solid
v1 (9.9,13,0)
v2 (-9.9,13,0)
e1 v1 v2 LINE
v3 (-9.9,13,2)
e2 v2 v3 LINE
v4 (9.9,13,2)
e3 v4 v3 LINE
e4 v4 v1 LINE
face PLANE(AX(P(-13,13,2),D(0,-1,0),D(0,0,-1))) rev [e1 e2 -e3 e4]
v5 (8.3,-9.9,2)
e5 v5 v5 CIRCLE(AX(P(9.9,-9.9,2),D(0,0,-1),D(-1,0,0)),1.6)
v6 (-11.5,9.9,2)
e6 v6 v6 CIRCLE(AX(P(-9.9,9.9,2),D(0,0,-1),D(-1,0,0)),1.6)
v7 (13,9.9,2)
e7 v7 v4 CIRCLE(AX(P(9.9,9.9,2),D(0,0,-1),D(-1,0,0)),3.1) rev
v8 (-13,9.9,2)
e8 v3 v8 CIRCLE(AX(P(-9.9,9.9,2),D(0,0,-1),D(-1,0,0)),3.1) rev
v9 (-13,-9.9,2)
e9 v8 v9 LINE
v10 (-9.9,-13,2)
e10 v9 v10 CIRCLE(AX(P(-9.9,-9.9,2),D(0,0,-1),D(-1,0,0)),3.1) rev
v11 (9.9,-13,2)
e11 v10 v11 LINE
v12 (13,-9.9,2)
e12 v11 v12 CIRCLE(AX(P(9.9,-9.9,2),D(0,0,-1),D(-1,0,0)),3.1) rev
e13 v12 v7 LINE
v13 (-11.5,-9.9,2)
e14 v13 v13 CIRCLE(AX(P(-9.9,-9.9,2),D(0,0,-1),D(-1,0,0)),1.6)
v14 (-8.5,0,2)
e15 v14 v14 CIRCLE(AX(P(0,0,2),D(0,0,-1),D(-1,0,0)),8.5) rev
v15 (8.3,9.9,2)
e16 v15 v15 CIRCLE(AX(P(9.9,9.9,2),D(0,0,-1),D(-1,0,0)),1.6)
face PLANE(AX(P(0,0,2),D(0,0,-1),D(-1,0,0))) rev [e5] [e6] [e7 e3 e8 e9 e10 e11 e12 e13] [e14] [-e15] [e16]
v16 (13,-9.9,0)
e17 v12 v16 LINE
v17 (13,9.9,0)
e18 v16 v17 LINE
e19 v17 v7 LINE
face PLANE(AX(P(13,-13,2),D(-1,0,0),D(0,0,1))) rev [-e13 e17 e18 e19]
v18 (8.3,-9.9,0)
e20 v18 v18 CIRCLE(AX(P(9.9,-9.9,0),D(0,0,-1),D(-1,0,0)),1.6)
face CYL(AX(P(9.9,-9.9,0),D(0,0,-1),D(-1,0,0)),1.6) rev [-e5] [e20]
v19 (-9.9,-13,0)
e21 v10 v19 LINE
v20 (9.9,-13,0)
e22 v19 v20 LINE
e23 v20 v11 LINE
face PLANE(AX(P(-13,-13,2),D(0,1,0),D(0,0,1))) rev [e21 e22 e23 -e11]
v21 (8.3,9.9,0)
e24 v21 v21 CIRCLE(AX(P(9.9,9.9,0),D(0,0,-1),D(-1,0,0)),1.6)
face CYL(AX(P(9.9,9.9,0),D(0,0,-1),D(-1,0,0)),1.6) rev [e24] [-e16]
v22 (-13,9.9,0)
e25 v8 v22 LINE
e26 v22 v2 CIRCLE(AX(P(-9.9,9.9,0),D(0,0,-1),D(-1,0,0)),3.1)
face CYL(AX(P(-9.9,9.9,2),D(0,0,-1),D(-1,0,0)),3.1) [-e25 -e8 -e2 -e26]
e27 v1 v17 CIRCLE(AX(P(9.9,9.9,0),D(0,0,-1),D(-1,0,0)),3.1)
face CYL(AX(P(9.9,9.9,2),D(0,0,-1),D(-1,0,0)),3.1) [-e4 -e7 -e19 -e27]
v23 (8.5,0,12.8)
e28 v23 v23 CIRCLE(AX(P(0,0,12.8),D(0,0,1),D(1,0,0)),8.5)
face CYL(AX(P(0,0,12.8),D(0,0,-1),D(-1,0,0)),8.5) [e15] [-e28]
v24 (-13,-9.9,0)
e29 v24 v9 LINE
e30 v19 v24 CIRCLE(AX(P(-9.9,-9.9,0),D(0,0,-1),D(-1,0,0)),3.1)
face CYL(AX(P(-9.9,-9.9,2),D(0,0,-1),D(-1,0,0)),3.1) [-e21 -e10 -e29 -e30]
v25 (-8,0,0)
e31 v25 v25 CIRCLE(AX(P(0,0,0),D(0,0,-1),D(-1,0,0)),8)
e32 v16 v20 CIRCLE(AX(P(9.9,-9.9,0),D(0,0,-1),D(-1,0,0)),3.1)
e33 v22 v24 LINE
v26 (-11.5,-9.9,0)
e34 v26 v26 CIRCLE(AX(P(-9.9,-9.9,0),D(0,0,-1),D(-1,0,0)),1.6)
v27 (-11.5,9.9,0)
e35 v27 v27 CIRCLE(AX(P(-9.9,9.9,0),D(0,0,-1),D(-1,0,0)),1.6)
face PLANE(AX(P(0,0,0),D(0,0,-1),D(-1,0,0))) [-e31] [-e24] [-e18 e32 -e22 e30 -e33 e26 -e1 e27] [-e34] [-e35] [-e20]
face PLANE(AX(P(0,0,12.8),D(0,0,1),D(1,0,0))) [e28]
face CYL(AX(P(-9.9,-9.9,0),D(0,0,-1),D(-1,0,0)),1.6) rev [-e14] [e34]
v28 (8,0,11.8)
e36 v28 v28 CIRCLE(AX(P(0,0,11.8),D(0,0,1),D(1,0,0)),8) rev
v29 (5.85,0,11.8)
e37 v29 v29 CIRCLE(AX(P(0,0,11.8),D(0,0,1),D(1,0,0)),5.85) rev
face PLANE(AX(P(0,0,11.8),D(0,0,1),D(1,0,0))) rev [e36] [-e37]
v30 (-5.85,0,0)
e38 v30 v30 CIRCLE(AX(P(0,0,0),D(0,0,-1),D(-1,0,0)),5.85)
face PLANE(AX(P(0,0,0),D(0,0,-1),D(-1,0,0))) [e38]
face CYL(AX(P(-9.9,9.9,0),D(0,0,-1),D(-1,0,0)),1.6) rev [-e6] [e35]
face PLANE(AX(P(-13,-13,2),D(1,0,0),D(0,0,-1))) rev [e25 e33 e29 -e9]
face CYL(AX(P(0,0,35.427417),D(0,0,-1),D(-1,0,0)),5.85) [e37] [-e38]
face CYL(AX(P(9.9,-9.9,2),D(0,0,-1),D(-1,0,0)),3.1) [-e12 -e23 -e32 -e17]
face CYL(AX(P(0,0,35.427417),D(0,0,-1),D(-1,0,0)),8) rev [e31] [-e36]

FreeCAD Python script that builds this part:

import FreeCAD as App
import Part
import Sketcher
from FreeCAD import Vector


def edges_at(feature, points):
    """Names of the edges that pass closest to the given points."""
    edges = feature.Shape.Edges
    near = lambda p: min(range(len(edges)), key=lambda i: edges[i].distToShape(Part.Vertex(*p))[0])
    return sorted({f"Edge{near(p) + 1}" for p in points})


def add_polygon(sketch, points):
    """Adds a closed chain of lines whose ends are joined by coincident constraints."""
    first, n = sketch.GeometryCount, len(points)
    for a, b in zip(points, points[1:] + points[:1]):
        sketch.addGeometry(Part.LineSegment(App.Vector(*a, 0), App.Vector(*b, 0)), False)
    for i in range(n):
        sketch.addConstraint(Sketcher.Constraint("Coincident", first + i, 2, first + (i + 1) % n, 1))

doc = App.newDocument("Part")
body = doc.addObject("PartDesign::Body", "Body")

# Sketch on XY plane
sketch1 = body.newObject("Sketcher::SketchObject", "Sketch")
sketch1.AttachmentSupport = (doc.getObject("XY_Plane"), [""])
sketch1.MapMode = "FlatFace"
add_polygon(sketch1, [(-13, 13), (-13, -13), (13, -13), (13, 13)])  # lines 0-3
sketch1.addConstraint(Sketcher.Constraint("Vertical", 0))
sketch1.addConstraint(Sketcher.Constraint("Horizontal", 1))
sketch1.addConstraint(Sketcher.Constraint("Vertical", 2))
sketch1.addConstraint(Sketcher.Constraint("Horizontal", 3))
sketch1.addConstraint(Sketcher.Constraint("Symmetric", 0, 2, 2, 2, -1, 1))
sketch1.addConstraint(Sketcher.Constraint("Equal", 3, 0))
sketch1.addConstraint(Sketcher.Constraint("DistanceX", 1, 1, 1, 2, 26.0))
pad1 = body.newObject("PartDesign::Pad", "Pad")
pad1.Profile = sketch1
pad1.Length = 2
doc.recompute()

fillet = body.newObject("PartDesign::Fillet", "Fillet")
fillet.Base = (pad1, edges_at(pad1, [
    (13, -13, 1),
    (-13, -13, 1),
    (-13, 13, 1),
    (13, 13, 1),
]))
fillet.Radius = 3.1

# Sketch on XY plane
sketch2 = body.newObject("Sketcher::SketchObject", "Sketch001")
sketch2.AttachmentSupport = (doc.getObject("XY_Plane"), [""])
sketch2.MapMode = "FlatFace"
sketch2.addGeometry(Part.Circle(Vector(0, 0, 0), Vector(0, 0, 1), 8), False)
sketch2.addConstraint(Sketcher.Constraint("Coincident", 0, 3, -1, 1))
sketch2.addConstraint(Sketcher.Constraint("Diameter", 0, 17.0))
pad2 = body.newObject("PartDesign::Pad", "Pad001")
pad2.Profile = sketch2
pad2.Length = 12.8

# Sketch on XY plane
sketch3 = body.newObject("Sketcher::SketchObject", "Sketch002")
sketch3.AttachmentSupport = (doc.getObject("XY_Plane"), [""])
sketch3.MapMode = "FlatFace"
sketch3.addGeometry(Part.Circle(Vector(-9.9, 9.9, 0), Vector(0, 0, 1), 1.6), False)
sketch3.addGeometry(Part.Circle(Vector(-9.9, -9.9, 0), Vector(0, 0, 1), 1.6), False)
sketch3.addGeometry(Part.Circle(Vector(9.9, -9.9, 0), Vector(0, 0, 1), 1.6), False)
sketch3.addGeometry(Part.Circle(Vector(9.9, 9.9, 0), Vector(0, 0, 1), 1.6), False)
sketch3.addConstraint(Sketcher.Constraint("Equal", 0, 1))
sketch3.addConstraint(Sketcher.Constraint("Equal", 1, 2))
sketch3.addConstraint(Sketcher.Constraint("Equal", 2, 3))
sketch3.addConstraint(Sketcher.Constraint("Symmetric", 0, 3, 2, 3, -1, 1))
sketch3.addConstraint(Sketcher.Constraint("Symmetric", 1, 3, 3, 3, -1, 1))
sketch3.addConstraint(Sketcher.Constraint("Symmetric", 1, 3, 2, 3, -2))
sketch3.addConstraint(Sketcher.Constraint("Diameter", 0, 3.2))
sketch3.addConstraint(Sketcher.Constraint("DistanceX", 0, 3, -1, 1, 9.9))
sketch3.addConstraint(Sketcher.Constraint("DistanceY", -1, 1, 0, 3, 9.9))
doc.recompute()
hole = body.newObject("PartDesign::Hole", "Hole")
hole.Profile = sketch3
hole.ThreadType = "None"
hole.Diameter = 3.2
hole.DepthType = "Dimension"
hole.Depth = 5
hole.DrillPoint = "Angled"
hole.DrillPointAngle = 118
hole.Reversed = True

# Sketch on XY plane
sketch4 = body.newObject("Sketcher::SketchObject", "Sketch003")
sketch4.AttachmentSupport = (doc.getObject("XY_Plane"), [""])
sketch4.MapMode = "FlatFace"
sketch4.addGeometry(Part.Circle(Vector(0, 0, 0), Vector(0, 0, 1), 8), False)
sketch4.addGeometry(Part.Circle(Vector(0, 0, 0), Vector(0, 0, 1), 6), False)
sketch4.addConstraint(Sketcher.Constraint("Coincident", 0, 3, -1, 1))
sketch4.addConstraint(Sketcher.Constraint("Coincident", 1, 3, -1, 1))
sketch4.addConstraint(Sketcher.Constraint("Diameter", 0, 16.0))
sketch4.addConstraint(Sketcher.Constraint("Diameter", 1, 11.7))
pocket1 = body.newObject("PartDesign::Pocket", "Pocket")
pocket1.Profile = sketch4
pocket1.Length = 11.8
pocket1.Reversed = True

doc.recompute()
